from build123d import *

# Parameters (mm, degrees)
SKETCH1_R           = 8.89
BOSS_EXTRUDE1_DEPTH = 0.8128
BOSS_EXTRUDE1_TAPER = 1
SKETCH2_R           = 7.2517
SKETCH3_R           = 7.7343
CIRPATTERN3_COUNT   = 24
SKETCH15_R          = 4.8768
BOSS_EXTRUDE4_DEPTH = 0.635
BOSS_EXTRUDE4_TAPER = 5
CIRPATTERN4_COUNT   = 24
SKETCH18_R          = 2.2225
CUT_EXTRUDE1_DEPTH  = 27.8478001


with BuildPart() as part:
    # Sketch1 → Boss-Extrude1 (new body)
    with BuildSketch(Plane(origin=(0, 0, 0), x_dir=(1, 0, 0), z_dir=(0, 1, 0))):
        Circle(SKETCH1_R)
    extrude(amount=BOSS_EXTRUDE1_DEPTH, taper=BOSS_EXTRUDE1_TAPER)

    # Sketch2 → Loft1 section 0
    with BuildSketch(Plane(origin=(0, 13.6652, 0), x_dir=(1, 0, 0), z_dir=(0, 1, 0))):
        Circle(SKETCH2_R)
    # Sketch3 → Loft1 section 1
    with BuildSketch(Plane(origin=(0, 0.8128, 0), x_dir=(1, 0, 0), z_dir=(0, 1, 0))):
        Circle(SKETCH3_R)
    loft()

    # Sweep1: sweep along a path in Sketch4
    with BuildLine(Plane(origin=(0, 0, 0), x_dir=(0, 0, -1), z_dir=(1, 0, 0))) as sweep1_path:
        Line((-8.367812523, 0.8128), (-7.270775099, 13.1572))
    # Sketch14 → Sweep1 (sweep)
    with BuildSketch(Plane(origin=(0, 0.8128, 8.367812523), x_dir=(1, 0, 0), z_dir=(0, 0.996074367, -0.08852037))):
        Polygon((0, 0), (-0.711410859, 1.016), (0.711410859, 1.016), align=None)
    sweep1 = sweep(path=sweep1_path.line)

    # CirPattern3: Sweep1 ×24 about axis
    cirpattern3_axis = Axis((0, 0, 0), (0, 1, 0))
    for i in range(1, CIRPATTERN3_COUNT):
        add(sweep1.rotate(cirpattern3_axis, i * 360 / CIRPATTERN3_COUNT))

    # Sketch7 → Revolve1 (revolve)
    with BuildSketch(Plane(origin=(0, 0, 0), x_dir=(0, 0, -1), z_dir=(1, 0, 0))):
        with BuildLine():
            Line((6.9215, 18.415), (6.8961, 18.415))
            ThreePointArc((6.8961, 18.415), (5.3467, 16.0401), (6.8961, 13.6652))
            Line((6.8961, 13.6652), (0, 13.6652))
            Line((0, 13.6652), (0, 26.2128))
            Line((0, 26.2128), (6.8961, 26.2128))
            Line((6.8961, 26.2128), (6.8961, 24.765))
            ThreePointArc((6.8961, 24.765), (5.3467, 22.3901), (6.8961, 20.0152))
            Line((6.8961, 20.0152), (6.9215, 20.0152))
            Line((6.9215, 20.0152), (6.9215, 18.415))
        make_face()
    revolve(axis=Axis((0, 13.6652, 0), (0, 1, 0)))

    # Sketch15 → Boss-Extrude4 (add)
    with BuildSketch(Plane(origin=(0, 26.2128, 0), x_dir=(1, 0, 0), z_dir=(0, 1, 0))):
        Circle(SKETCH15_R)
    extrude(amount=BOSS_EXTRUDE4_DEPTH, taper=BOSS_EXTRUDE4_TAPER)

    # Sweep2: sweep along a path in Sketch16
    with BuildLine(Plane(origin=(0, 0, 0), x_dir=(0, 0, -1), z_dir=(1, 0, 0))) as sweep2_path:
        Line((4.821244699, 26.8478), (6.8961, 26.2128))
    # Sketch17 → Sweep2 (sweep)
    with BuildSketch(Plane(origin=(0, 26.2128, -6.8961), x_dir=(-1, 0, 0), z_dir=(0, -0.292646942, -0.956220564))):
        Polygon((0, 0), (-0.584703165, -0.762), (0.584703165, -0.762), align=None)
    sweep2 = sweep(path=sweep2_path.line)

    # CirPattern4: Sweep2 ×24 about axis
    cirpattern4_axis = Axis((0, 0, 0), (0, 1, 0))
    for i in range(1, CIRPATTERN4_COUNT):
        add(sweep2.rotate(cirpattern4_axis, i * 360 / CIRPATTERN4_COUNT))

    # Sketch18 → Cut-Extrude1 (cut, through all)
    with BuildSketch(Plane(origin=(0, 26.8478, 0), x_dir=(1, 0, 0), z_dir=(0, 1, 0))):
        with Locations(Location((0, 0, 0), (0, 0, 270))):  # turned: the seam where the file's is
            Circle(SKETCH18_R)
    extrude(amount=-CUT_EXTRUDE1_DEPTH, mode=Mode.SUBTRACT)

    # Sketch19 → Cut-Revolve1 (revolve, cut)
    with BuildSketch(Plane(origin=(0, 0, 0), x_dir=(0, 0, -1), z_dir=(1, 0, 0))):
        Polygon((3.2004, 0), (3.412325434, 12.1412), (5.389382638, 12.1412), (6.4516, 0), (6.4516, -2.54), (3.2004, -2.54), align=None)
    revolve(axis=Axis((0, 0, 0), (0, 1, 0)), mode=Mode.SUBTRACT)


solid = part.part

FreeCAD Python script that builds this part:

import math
import FreeCAD as App
import Part
import Sketcher

V = App.Vector
Q = App.Units.Quantity


def add_polygon(sketch, points):
    """Adds a closed chain of lines whose ends are joined by coincident constraints."""
    first, n = sketch.GeometryCount, len(points)
    for a, b in zip(points, points[1:] + points[:1]):
        sketch.addGeometry(Part.LineSegment(App.Vector(*a, 0), App.Vector(*b, 0)), False)
    for i in range(n):
        sketch.addConstraint(Sketcher.Constraint("Coincident", first + i, 2, first + (i + 1) % n, 1))

doc = App.newDocument("Part")
body = doc.addObject("PartDesign::Body", "Body")

# Sketch on XZ plane
sketch1 = body.newObject("Sketcher::SketchObject", "Sketch")
sketch1.AttachmentSupport = (doc.getObject("XZ_Plane"), [""])
sketch1.MapMode = "FlatFace"
sketch1.addGeometry(Part.Circle(V(0, 0, 0), V(0, 0, 1), 8.89), False)
sketch1.addConstraint(Sketcher.Constraint("Coincident", 0, 3, -1, 1))
sketch1.addConstraint(Sketcher.Constraint("Diameter", 0, Q("0.7 in")))
pad1 = body.newObject("PartDesign::Pad", "Pad")
pad1.Profile = sketch1
pad1.Length = Q("0.032 in")
pad1.Reversed = True
pad1.TaperAngle = -1

# Sketch on XZ plane
sketch2 = body.newObject("Sketcher::SketchObject", "Sketch001")
sketch2.AttachmentSupport = (doc.getObject("XZ_Plane"), [""])
sketch2.MapMode = "FlatFace"
sketch2.AttachmentOffset = App.Placement(V(0, 0, -0.538 * 25.4), App.Rotation())
sketch2.addGeometry(Part.Circle(V(0, 0, 0), V(0, 0, 1), 7.2517), False)
sketch2.addConstraint(Sketcher.Constraint("Coincident", 0, 3, -1, 1))
sketch2.addConstraint(Sketcher.Constraint("Diameter", 0, Q("0.571 in")))

# Sketch on XZ plane
sketch3 = body.newObject("Sketcher::SketchObject", "Sketch002")
sketch3.AttachmentSupport = (doc.getObject("XZ_Plane"), [""])
sketch3.MapMode = "FlatFace"
sketch3.AttachmentOffset = App.Placement(V(0, 0, -0.032 * 25.4), App.Rotation())
sketch3.addGeometry(Part.Circle(V(0, 0, 0), V(0, 0, 1), 7.7343), False)
sketch3.addConstraint(Sketcher.Constraint("Coincident", 0, 3, -1, 1))
sketch3.addConstraint(Sketcher.Constraint("Diameter", 0, Q("0.609 in")))

additiveloft = body.newObject("PartDesign::AdditiveLoft", "AdditiveLoft")
additiveloft.Profile = sketch2
additiveloft.Sections = [sketch3]

# Sketch on an angled plane
sketch4 = body.newObject("Sketcher::SketchObject", "Sketch003")
sketch4.Placement = App.Placement(V(0, 0.8128, 8.367813), App.Rotation(V(1, 0, 0), V(0, -0.08852037, -0.996074367), V(0, 0.996074367, -0.08852037), "ZXY"))
add_polygon(sketch4, [(-0.711411, 1.016), (0, 0), (0.711411, 1.016)])  # lines 0-2
sketch4.addConstraint(Sketcher.Constraint("Horizontal", 2))
sketch4.addConstraint(Sketcher.Constraint("Coincident", 0, 2, -1, 1))
sketch4.addConstraint(Sketcher.Constraint("Equal", 0, 1))
sketch4.addConstraint(Sketcher.Constraint("Angle", 0, Q("-55 deg")))
sketch4.addConstraint(Sketcher.Constraint("DistanceY", -1, 1, 1, 2, Q("0.04 in")))

# Sketch on an angled plane
sketch5 = body.newObject("Sketcher::SketchObject", "Sketch004")
sketch5.Placement = App.Placement(V(0, 0.744183, 8.37391), App.Rotation(V(0, -0.996074367, 0.08852037), V(1, 0, 0), V(0, 0.08852037, 0.996074367), "ZXY"))
sketch5.addGeometry(Part.LineSegment(V(-0.068887, 0, 0), V(-12.461938, 0, 0)), False)
sketch5.addConstraint(Sketcher.Constraint("Horizontal", 0))
sketch5.addConstraint(Sketcher.Constraint("PointOnObject", 0, 1, -1))
sketch5.addConstraint(Sketcher.Constraint("DistanceX", 0, 2, 0, 1, 12.393051))
sketch5.addConstraint(Sketcher.Constraint("DistanceX", 0, 1, -1, 1, 0.068887))
doc.recompute()

additivepipe = body.newObject("PartDesign::AdditivePipe", "AdditivePipe")
additivepipe.Profile = sketch4
additivepipe.Spine = (sketch5, ["Edge1"])
doc.recompute()

polarpattern = body.newObject("PartDesign::PolarPattern", "PolarPattern")
polarpattern.Originals = [additivepipe]
polarpattern.Axis = (doc.getObject("Y_Axis"), [""])
polarpattern.Angle = 360
polarpattern.Occurrences = 24
body.Tip = polarpattern

# Sketch on YZ plane
sketch6 = body.newObject("Sketcher::SketchObject", "Sketch005")
sketch6.AttachmentSupport = (doc.getObject("YZ_Plane"), [""])
sketch6.MapMode = "FlatFace"
sketch6.addGeometry(Part.LineSegment(V(18.415, -6.8961, 0), V(18.415, -6.9215, 0)), False)
sketch6.addGeometry(Part.LineSegment(V(18.415, -6.9215, 0), V(20.0152, -6.9215, 0)), False)
sketch6.addGeometry(Part.LineSegment(V(20.0152, -6.9215, 0), V(20.0152, -6.8961, 0)), False)
sketch6.addGeometry(Part.ArcOfCircle(Part.Circle(V(22.3901, -7.941508, 0), V(0, 0, 1), 2.594808), math.radians(23.758626), math.radians(156.241374)), False)
sketch6.addGeometry(Part.LineSegment(V(24.765, -6.8961, 0), V(26.2128, -6.8961, 0)), False)
sketch6.addGeometry(Part.LineSegment(V(26.2128, -6.8961, 0), V(26.2128, 0, 0)), False)
sketch6.addGeometry(Part.LineSegment(V(26.2128, 0, 0), V(13.6652, 0, 0)), False)
sketch6.addGeometry(Part.LineSegment(V(13.6652, 0, 0), V(13.6652, -6.8961, 0)), False)
sketch6.addGeometry(Part.ArcOfCircle(Part.Circle(V(16.0401, -7.941508, 0), V(0, 0, 1), 2.594808), math.radians(23.758626), math.radians(156.241374)), False)
sketch6.addConstraint(Sketcher.Constraint("Coincident", 0, 2, 1, 1))
sketch6.addConstraint(Sketcher.Constraint("Coincident", 1, 2, 2, 1))
sketch6.addConstraint(Sketcher.Constraint("Coincident", 2, 2, 3, 2))
sketch6.addConstraint(Sketcher.Constraint("Coincident", 3, 1, 4, 1))
sketch6.addConstraint(Sketcher.Constraint("Coincident", 4, 2, 5, 1))
sketch6.addConstraint(Sketcher.Constraint("Coincident", 5, 2, 6, 1))
sketch6.addConstraint(Sketcher.Constraint("Coincident", 6, 2, 7, 1))
sketch6.addConstraint(Sketcher.Constraint("Coincident", 7, 2, 8, 2))
sketch6.addConstraint(Sketcher.Constraint("Coincident", 8, 1, 0, 1))
sketch6.addConstraint(Sketcher.Constraint("Vertical", 0))
sketch6.addConstraint(Sketcher.Constraint("Horizontal", 1))
sketch6.addConstraint(Sketcher.Constraint("Vertical", 2))
sketch6.addConstraint(Sketcher.Constraint("Horizontal", 4))
sketch6.addConstraint(Sketcher.Constraint("Vertical", 5))
sketch6.addConstraint(Sketcher.Constraint("Horizontal", 6))
sketch6.addConstraint(Sketcher.Constraint("Vertical", 7))
sketch6.addConstraint(Sketcher.Constraint("Equal", 3, 8))
sketch6.addConstraint(Sketcher.Constraint("PointOnObject", 5, 2, -1))
sketch6.addConstraint(Sketcher.Constraint("Horizontal", 3, 3, 8, 3))
sketch6.addConstraint(Sketcher.Constraint("Horizontal", 2, 2, 3, 1))
sketch6.addConstraint(Sketcher.Constraint("Horizontal", 4, 2, 7, 2))
sketch6.addConstraint(Sketcher.Constraint("Horizontal", 7, 2, 8, 1))
sketch6.addConstraint(Sketcher.Constraint("DistanceX", 1, 1, 1, 2, Q("0.063 in")))
sketch6.addConstraint(Sketcher.Constraint("DistanceX", 4, 1, 4, 2, Q("0.057 in")))
sketch6.addConstraint(Sketcher.Constraint("DistanceX", 6, 2, 6, 1, Q("0.494 in")))
sketch6.addConstraint(Sketcher.Constraint("DistanceY", 0, 2, 0, 1, Q("0.001 in")))
sketch6.addConstraint(Sketcher.Constraint("DistanceY", 5, 1, 5, 2, Q("0.2715 in")))
sketch6.addConstraint(Sketcher.Constraint("DistanceX", -1, 1, 0, 2, Q("0.725 in")))
sketch6.addConstraint(Sketcher.Constraint("Radius", 3, 2.594808))
revolution = body.newObject("PartDesign::Revolution", "Revolution")
revolution.Profile = sketch6
revolution.ReferenceAxis = (sketch6, ["H_Axis"])
revolution.Angle = 360

# Sketch on XZ plane
sketch7 = body.newObject("Sketcher::SketchObject", "Sketch006")
sketch7.AttachmentSupport = (doc.getObject("XZ_Plane"), [""])
sketch7.MapMode = "FlatFace"
sketch7.AttachmentOffset = App.Placement(V(0, 0, -1.032 * 25.4), App.Rotation())
sketch7.addGeometry(Part.Circle(V(0, 0, 0), V(0, 0, 1), 4.8768), False)
sketch7.addConstraint(Sketcher.Constraint("Coincident", 0, 3, -1, 1))
sketch7.addConstraint(Sketcher.Constraint("Diameter", 0, Q("0.384 in")))
pad2 = body.newObject("PartDesign::Pad", "Pad001")
pad2.Profile = sketch7
pad2.Length = Q("0.025 in")
pad2.Reversed = True
pad2.TaperAngle = -5

# Sketch on an angled plane
sketch8 = body.newObject("Sketcher::SketchObject", "Sketch007")
sketch8.Placement = App.Placement(V(0, 26.2128, -6.8961), App.Rotation(V(-1, 0, 0), V(0, 0.956220564, -0.292646942), V(0, -0.292646942, -0.956220564), "ZXY"))
add_polygon(sketch8, [(0, 0), (-0.584703, -0.762), (0.584703, -0.762)])  # lines 0-2
sketch8.addConstraint(Sketcher.Constraint("Horizontal", 1))
sketch8.addConstraint(Sketcher.Constraint("Coincident", 2, 2, -1, 1))
sketch8.addConstraint(Sketcher.Constraint("Equal", 0, 2))
sketch8.addConstraint(Sketcher.Constraint("Angle", 0, Q("-127.5 deg")))
sketch8.addConstraint(Sketcher.Constraint("DistanceY", 0, 2, -1, 1, Q("0.03 in")))

# Sketch on an angled plane
sketch9 = body.newObject("Sketcher::SketchObject", "Sketch008")
sketch9.Placement = App.Placement(V(0, 25.897648, -7.925857), App.Rotation(V(0, 0.292646942, 0.956220564), V(1, 0, 0), V(0, 0.956220564, -0.292646942), "ZXY"))
sketch9.addGeometry(Part.LineSegment(V(3.246753, 0, 0), V(1.076903, 0, 0)), False)
sketch9.addConstraint(Sketcher.Constraint("Horizontal", 0))
sketch9.addConstraint(Sketcher.Constraint("PointOnObject", 0, 1, -1))
sketch9.addConstraint(Sketcher.Constraint("DistanceX", 0, 2, 0, 1, 2.16985))
sketch9.addConstraint(Sketcher.Constraint("DistanceX", -1, 1, 0, 1, 3.246753))
doc.recompute()

additivepipe2 = body.newObject("PartDesign::AdditivePipe", "AdditivePipe001")
additivepipe2.Profile = sketch8
additivepipe2.Spine = (sketch9, ["Edge1"])
doc.recompute()

polarpattern2 = body.newObject("PartDesign::PolarPattern", "PolarPattern001")
polarpattern2.Originals = [additivepipe2]
polarpattern2.Axis = (doc.getObject("Y_Axis"), [""])
polarpattern2.Angle = 360
polarpattern2.Occurrences = 24
body.Tip = polarpattern2

# Sketch on XZ plane
sketch10 = body.newObject("Sketcher::SketchObject", "Sketch009")
sketch10.AttachmentSupport = (doc.getObject("XZ_Plane"), [""])
sketch10.MapMode = "FlatFace"
sketch10.AttachmentOffset = App.Placement(V(0, 0, -1.057 * 25.4), App.Rotation())
sketch10.addGeometry(Part.Circle(V(0, 0, 0), V(0, 0, 1), 2.2225), False)
sketch10.addConstraint(Sketcher.Constraint("Coincident", 0, 3, -1, 1))
sketch10.addConstraint(Sketcher.Constraint("Diameter", 0, Q("0.175 in")))
pocket1 = body.newObject("PartDesign::Pocket", "Pocket")
pocket1.Profile = sketch10
pocket1.Type = "ThroughAll"
pocket1.Reversed = True

# Sketch on YZ plane
sketch11 = body.newObject("Sketcher::SketchObject", "Sketch010")
sketch11.AttachmentSupport = (doc.getObject("YZ_Plane"), [""])
sketch11.MapMode = "FlatFace"
add_polygon(sketch11, [(12.1412, -3.412325), (0, -3.2004), (-2.54, -3.2004), (-2.54, -6.4516), (0, -6.4516), (12.1412, -5.389383)])  # lines 0-5
sketch11.addConstraint(Sketcher.Constraint("Horizontal", 1))
sketch11.addConstraint(Sketcher.Constraint("Vertical", 2))
sketch11.addConstraint(Sketcher.Constraint("Horizontal", 3))
sketch11.addConstraint(Sketcher.Constraint("Vertical", 5))
sketch11.addConstraint(Sketcher.Constraint("PointOnObject", 0, 2, -2))
sketch11.addConstraint(Sketcher.Constraint("PointOnObject", 3, 2, -2))
sketch11.addConstraint(Sketcher.Constraint("DistanceX", 1, 2, 1, 1, Q("0.1 in")))
sketch11.addConstraint(Sketcher.Constraint("Angle", 0, Q("179 deg")))
sketch11.addConstraint(Sketcher.Constraint("Angle", 4, Q("5 deg")))
sketch11.addConstraint(Sketcher.Constraint("DistanceY", 2, 2, 2, 1, Q("0.128 in")))
sketch11.addConstraint(Sketcher.Constraint("DistanceY", 0, 2, -1, 1, Q("0.126 in")))
sketch11.addConstraint(Sketcher.Constraint("DistanceX", -1, 1, 4, 2, Q("0.478 in")))
groove = body.newObject("PartDesign::Groove", "Groove")
groove.Profile = sketch11
groove.ReferenceAxis = (sketch11, ["H_Axis"])
groove.Angle = 360

doc.recompute()
